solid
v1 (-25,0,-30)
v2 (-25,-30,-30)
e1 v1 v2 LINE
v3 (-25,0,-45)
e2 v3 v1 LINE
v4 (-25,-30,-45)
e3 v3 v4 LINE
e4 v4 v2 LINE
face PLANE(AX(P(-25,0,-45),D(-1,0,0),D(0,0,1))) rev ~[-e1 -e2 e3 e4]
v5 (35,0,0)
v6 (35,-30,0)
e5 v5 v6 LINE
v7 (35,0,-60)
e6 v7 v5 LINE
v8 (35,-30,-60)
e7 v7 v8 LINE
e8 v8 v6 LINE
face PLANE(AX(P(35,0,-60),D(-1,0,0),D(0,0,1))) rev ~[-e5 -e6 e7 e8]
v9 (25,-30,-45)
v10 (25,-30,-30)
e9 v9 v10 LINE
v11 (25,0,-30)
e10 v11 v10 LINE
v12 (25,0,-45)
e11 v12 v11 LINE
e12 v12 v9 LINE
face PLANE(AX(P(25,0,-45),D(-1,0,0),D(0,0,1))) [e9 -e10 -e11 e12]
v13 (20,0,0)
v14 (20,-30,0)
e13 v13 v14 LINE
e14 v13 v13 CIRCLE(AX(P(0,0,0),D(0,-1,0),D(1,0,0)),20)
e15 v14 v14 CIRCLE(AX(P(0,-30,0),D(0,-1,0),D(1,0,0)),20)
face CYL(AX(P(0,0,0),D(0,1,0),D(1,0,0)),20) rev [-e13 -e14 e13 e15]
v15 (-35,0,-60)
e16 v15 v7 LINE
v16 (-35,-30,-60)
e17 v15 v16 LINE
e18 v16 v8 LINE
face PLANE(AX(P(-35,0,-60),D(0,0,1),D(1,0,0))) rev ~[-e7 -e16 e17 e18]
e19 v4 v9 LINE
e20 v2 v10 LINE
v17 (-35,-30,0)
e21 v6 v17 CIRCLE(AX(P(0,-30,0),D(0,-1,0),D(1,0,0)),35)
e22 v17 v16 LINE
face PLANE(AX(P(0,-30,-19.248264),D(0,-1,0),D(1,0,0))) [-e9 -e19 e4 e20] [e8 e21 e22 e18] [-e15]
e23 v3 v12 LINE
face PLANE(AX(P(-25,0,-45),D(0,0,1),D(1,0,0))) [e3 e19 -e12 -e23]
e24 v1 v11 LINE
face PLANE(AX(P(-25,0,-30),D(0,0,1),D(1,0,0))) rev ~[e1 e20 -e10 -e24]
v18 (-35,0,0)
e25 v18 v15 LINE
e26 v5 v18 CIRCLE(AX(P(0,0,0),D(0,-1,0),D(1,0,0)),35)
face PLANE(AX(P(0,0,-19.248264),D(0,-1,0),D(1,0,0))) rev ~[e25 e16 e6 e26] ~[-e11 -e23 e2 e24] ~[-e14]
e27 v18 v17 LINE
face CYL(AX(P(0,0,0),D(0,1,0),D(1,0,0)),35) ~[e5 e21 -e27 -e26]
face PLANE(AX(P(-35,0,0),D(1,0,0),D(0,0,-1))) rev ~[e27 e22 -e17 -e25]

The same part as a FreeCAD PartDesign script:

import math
import FreeCAD as App
import Part
import Sketcher

doc = App.newDocument("Part")
body = doc.addObject("PartDesign::Body", "Body")

# Sketch on XZ plane
sketch1 = body.newObject("Sketcher::SketchObject", "Sketch")
sketch1.AttachmentSupport = (doc.getObject("XZ_Plane"), [""])
sketch1.MapMode = "FlatFace"
sketch1.addGeometry([
    Part.LineSegment(App.Vector(35, -60, 0), App.Vector(35, 0, 0)),  # 0
    Part.ArcOfCircle(Part.Circle(App.Vector(0, 0, 0), App.Vector(0, 0, 1), 35), math.radians(0), math.radians(180)),  # 1
    Part.LineSegment(App.Vector(-35, 0, 0), App.Vector(-35, -60, 0)),  # 2
    Part.LineSegment(App.Vector(-35, -60, 0), App.Vector(35, -60, 0)),  # 3
    Part.LineSegment(App.Vector(25, -45, 0), App.Vector(-25, -45, 0)),  # 4
    Part.LineSegment(App.Vector(-25, -45, 0), App.Vector(-25, -30, 0)),  # 5
    Part.LineSegment(App.Vector(-25, -30, 0), App.Vector(25, -30, 0)),  # 6
    Part.LineSegment(App.Vector(25, -30, 0), App.Vector(25, -45, 0)),  # 7
    Part.Circle(App.Vector(0, 0, 0), App.Vector(0, 0, 1), 20),  # 8
], False)
sketch1.addConstraint([
    Sketcher.Constraint("Tangent", 0, 2, 1, 1),
    Sketcher.Constraint("Tangent", 1, 2, 2, 1),
    Sketcher.Constraint("Coincident", 2, 2, 3, 1),
    Sketcher.Constraint("Coincident", 3, 2, 0, 1),
    Sketcher.Constraint("Coincident", 4, 2, 5, 1),
    Sketcher.Constraint("Coincident", 5, 2, 6, 1),
    Sketcher.Constraint("Coincident", 6, 2, 7, 1),
    Sketcher.Constraint("Coincident", 7, 2, 4, 1),
    Sketcher.Constraint("Vertical", 0),
    Sketcher.Constraint("Vertical", 2),
    Sketcher.Constraint("Horizontal", 3),
    Sketcher.Constraint("Horizontal", 4),
    Sketcher.Constraint("Vertical", 5),
    Sketcher.Constraint("Horizontal", 6),
    Sketcher.Constraint("Vertical", 7),
    Sketcher.Constraint("Coincident", 1, 3, -1, 1),
    Sketcher.Constraint("Coincident", 8, 3, -1, 1),
    Sketcher.Constraint("Diameter", 8, 40.0),
    Sketcher.Constraint("Radius", 1, 35.0),
    Sketcher.Constraint("DistanceX", 4, 2, 4, 1, 50.0),
    Sketcher.Constraint("DistanceY", 0, 1, 0, 2, 60.0),
    Sketcher.Constraint("DistanceY", 5, 1, 5, 2, 15.0),
    Sketcher.Constraint("DistanceX", 4, 2, -1, 1, 25.0),
    Sketcher.Constraint("DistanceY", 4, 2, -1, 1, 45.0),
])
pad1 = body.newObject("PartDesign::Pad", "Pad")
pad1.Profile = sketch1
pad1.Length = 30

doc.recompute()
